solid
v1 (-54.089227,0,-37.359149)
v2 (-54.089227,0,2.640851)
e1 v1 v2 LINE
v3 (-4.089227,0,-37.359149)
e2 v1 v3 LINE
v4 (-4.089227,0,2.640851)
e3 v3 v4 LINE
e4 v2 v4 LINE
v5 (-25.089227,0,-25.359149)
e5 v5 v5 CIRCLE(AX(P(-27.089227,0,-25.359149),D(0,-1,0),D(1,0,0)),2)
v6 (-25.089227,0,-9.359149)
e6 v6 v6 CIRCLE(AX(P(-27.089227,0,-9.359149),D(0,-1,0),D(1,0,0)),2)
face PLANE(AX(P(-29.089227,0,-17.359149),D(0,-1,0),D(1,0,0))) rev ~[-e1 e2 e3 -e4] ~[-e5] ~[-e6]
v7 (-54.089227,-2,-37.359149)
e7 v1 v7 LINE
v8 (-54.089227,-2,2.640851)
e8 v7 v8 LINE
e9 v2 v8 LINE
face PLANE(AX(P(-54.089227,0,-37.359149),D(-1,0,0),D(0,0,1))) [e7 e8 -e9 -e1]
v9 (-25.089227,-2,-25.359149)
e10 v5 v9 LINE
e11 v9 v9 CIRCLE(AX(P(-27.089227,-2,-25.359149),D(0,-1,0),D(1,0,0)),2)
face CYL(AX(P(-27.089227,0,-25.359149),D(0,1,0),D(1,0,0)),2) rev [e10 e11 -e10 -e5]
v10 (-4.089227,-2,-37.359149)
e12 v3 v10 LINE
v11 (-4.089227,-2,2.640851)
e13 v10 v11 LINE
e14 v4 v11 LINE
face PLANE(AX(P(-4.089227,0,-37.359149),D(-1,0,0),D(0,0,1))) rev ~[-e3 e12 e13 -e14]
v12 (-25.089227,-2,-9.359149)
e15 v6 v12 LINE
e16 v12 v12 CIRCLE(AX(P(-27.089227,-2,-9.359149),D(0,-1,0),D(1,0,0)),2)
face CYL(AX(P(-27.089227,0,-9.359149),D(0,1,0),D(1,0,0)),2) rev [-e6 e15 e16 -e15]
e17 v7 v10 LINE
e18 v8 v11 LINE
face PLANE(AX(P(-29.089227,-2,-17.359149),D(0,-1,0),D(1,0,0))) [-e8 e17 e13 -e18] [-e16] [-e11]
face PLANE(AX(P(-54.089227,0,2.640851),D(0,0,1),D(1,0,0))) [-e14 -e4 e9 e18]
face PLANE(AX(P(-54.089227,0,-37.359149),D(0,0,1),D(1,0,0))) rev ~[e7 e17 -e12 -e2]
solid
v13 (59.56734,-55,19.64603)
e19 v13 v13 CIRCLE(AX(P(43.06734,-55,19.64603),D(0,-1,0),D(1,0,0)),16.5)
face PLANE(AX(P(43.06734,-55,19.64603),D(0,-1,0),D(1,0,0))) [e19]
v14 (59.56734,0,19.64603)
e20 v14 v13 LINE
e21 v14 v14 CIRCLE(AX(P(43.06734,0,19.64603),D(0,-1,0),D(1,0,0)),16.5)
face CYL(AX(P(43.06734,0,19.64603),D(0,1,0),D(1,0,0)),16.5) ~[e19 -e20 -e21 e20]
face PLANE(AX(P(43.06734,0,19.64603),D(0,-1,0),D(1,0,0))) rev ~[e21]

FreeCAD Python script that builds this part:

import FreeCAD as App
import Part
import Sketcher
Q = App.Units.Quantity

doc = App.newDocument("Part")
body = doc.addObject("PartDesign::Body", "Body")

sketch1 = doc.addObject("Sketcher::SketchObject", "Sketch")
body.addObject(sketch1)
sketch1.AttachmentSupport = (doc.XZ_Plane, [""])
sketch1.MapMode = "FlatFace"
sketch1.addGeometry([
    Part.LineSegment(App.Vector(-54.1, 2.6, 0), App.Vector(-54.1, -37.4, 0)),
    Part.LineSegment(App.Vector(-54.1, -37.4, 0), App.Vector(-4.1, -37.4, 0)),
    Part.LineSegment(App.Vector(-4.1, -37.4, 0), App.Vector(-4.1, 2.6, 0)),
    Part.LineSegment(App.Vector(-4.1, 2.6, 0), App.Vector(-54.1, 2.6, 0)),
    Part.Circle(App.Vector(-27.1, -25.4, 0), App.Vector(0, 0, 1), 2),
    Part.Circle(App.Vector(-27.1, -9.4, 0), App.Vector(0, 0, 1), 2),
], False)
sketch1.addConstraint([
    Sketcher.Constraint("Coincident", 0, 2, 1, 1),
    Sketcher.Constraint("Coincident", 1, 2, 2, 1),
    Sketcher.Constraint("Coincident", 2, 2, 3, 1),
    Sketcher.Constraint("Coincident", 3, 2, 0, 1),
    Sketcher.Constraint("Vertical", 0),
    Sketcher.Constraint("Horizontal", 1),
    Sketcher.Constraint("Vertical", 2),
    Sketcher.Constraint("Horizontal", 3),
    Sketcher.Constraint("Equal", 4, 5),
    Sketcher.Constraint("Vertical", 4, 3, 5, 3),
    Sketcher.Constraint("Diameter", 4, Q("4 mm")),
    Sketcher.Constraint("DistanceX", 1, 1, 1, 2, Q("50 mm")),
    Sketcher.Constraint("DistanceY", 0, 2, 0, 1, Q("40 mm")),
    Sketcher.Constraint("DistanceY", 4, 3, 5, 3, Q("16 mm")),
    Sketcher.Constraint("DistanceX", 0, 2, 4, 3, Q("27 mm")),
    Sketcher.Constraint("DistanceY", 0, 2, 4, 3, Q("12 mm")),
    Sketcher.Constraint("DistanceY", 4, 3, -1, 1, Q("25.359149 mm")),
    Sketcher.Constraint("DistanceX", 4, 3, -1, 1, Q("27.089227 mm")),
])
pad1 = doc.addObject("PartDesign::Pad", "Pad")
body.addObject(pad1)
pad1.Profile = sketch1
pad1.Length = 2
body2 = doc.addObject("PartDesign::Body", "Body001")

sketch2 = doc.addObject("Sketcher::SketchObject", "Sketch001")
body2.addObject(sketch2)
sketch2.AttachmentSupport = (doc.getObject("XZ_Plane001"), [""])
sketch2.MapMode = "FlatFace"
sketch2.addGeometry(Part.Circle(App.Vector(43, 20, 0), App.Vector(0, 0, 1), 16), False)
sketch2.addConstraint([
    Sketcher.Constraint("Diameter", 0, Q("33 mm")),
    Sketcher.Constraint("DistanceX", -1, 1, 0, 3, Q("43.06734 mm")),
    Sketcher.Constraint("DistanceY", -1, 1, 0, 3, Q("19.64603 mm")),
])
pad2 = doc.addObject("PartDesign::Pad", "Pad001")
body2.addObject(pad2)
pad2.Profile = sketch2
pad2.Length = 55

doc.recompute()
